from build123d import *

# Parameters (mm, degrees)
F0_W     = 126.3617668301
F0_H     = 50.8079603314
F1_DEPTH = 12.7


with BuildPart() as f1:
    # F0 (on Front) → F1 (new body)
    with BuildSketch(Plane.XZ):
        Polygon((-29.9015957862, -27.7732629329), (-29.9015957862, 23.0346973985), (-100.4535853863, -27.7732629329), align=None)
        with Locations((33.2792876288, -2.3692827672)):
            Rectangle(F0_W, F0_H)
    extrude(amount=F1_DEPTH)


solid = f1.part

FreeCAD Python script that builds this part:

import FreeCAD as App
import Part
import Sketcher
from FreeCAD import Vector
Q = App.Units.Quantity


def add_polygon(sketch, points):
    """Adds a closed chain of lines whose ends are joined by coincident constraints."""
    first, n = sketch.GeometryCount, len(points)
    for a, b in zip(points, points[1:] + points[:1]):
        sketch.addGeometry(Part.LineSegment(App.Vector(*a, 0), App.Vector(*b, 0)), False)
    for i in range(n):
        sketch.addConstraint(Sketcher.Constraint("Coincident", first + i, 2, first + (i + 1) % n, 1))

doc = App.newDocument("Part")
body = doc.addObject("PartDesign::Body", "Body")

sketch1 = body.newObject("Sketcher::SketchObject", "Sketch")
sketch1.AttachmentSupport = (doc.getObject("XZ_Plane"), [""])
sketch1.MapMode = "FlatFace"
add_polygon(sketch1, [(-29.901596, 23.034697), (-100.453585, -27.773263), (96.460171, -27.773263), (96.460171, 23.034697)])
sketch1.addConstraint([
    Sketcher.Constraint("Horizontal", 1),
    Sketcher.Constraint("Vertical", 2),
    Sketcher.Constraint("Horizontal", 3),
    Sketcher.Constraint("DistanceY", 2, 1, 2, 2, Q("50.80796 mm")),
    Sketcher.Constraint("DistanceX", 1, 1, 1, 2, Q("196.913756 mm")),
    Sketcher.Constraint("DistanceX", 3, 2, 3, 1, Q("126.361767 mm")),
    Sketcher.Constraint("DistanceX", -1, 1, 1, 2, Q("96.460171 mm")),
    Sketcher.Constraint("DistanceY", 0, 2, -1, 1, Q("27.773263 mm")),
])
pad1 = body.newObject("PartDesign::Pad", "Pad")
pad1.Profile = sketch1
pad1.Length = Q("0.5 in")

doc.recompute()
